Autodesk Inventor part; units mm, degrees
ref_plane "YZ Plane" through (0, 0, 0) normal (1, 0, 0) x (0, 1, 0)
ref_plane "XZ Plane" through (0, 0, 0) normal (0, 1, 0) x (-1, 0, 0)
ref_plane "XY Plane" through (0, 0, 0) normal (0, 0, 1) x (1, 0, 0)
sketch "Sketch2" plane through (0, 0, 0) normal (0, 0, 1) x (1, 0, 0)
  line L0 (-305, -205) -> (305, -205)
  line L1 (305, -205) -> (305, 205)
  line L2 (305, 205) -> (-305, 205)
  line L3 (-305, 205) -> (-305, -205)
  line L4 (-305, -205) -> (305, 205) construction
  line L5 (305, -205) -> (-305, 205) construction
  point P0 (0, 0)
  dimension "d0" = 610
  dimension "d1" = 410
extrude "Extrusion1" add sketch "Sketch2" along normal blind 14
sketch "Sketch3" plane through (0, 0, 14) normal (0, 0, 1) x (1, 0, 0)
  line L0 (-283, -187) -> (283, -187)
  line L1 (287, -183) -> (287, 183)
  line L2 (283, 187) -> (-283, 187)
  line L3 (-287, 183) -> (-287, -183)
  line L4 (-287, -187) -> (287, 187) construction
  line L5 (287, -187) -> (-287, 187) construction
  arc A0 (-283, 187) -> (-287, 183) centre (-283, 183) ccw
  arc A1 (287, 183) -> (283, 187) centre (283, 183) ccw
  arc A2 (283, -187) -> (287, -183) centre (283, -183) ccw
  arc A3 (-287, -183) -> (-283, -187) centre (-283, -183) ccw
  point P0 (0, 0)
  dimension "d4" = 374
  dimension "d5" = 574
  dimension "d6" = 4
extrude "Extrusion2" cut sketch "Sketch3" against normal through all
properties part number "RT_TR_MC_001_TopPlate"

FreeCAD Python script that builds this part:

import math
import FreeCAD as App
import Part
import Sketcher
from FreeCAD import Vector


def add_polygon(sketch, points):
    """Adds a closed chain of lines whose ends are joined by coincident constraints."""
    first, n = sketch.GeometryCount, len(points)
    for a, b in zip(points, points[1:] + points[:1]):
        sketch.addGeometry(Part.LineSegment(App.Vector(*a, 0), App.Vector(*b, 0)), False)
    for i in range(n):
        sketch.addConstraint(Sketcher.Constraint("Coincident", first + i, 2, first + (i + 1) % n, 1))

doc = App.newDocument("Part")
body = doc.addObject("PartDesign::Body", "Body")

sketch1 = doc.addObject("Sketcher::SketchObject", "Sketch")
body.addObject(sketch1)
sketch1.AttachmentSupport = (doc.XY_Plane, [""])
sketch1.MapMode = "FlatFace"
add_polygon(sketch1, [(-305, 205), (-305, -205), (305, -205), (305, 205)])
sketch1.addConstraint(Sketcher.Constraint("Vertical", 0))
sketch1.addConstraint(Sketcher.Constraint("Horizontal", 1))
sketch1.addConstraint(Sketcher.Constraint("Vertical", 2))
sketch1.addConstraint(Sketcher.Constraint("Horizontal", 3))
sketch1.addConstraint(Sketcher.Constraint("Symmetric", 0, 2, 2, 2, -1, 1))
sketch1.addConstraint(Sketcher.Constraint("DistanceX", 1, 1, 1, 2, 610.0))
sketch1.addConstraint(Sketcher.Constraint("DistanceY", 0, 2, 0, 1, 410.0))
pad1 = doc.addObject("PartDesign::Pad", "Pad")
body.addObject(pad1)
pad1.Profile = sketch1
pad1.Length = 14

sketch2 = doc.addObject("Sketcher::SketchObject", "Sketch001")
body.addObject(sketch2)
sketch2.AttachmentSupport = (doc.XY_Plane, [""])
sketch2.MapMode = "FlatFace"
sketch2.AttachmentOffset = App.Placement(Vector(0, 0, 14), App.Rotation())
sketch2.addGeometry(Part.ArcOfCircle(Part.Circle(Vector(-283, -183, 0), Vector(0, 0, 1), 4), math.radians(180), math.radians(270)), False)
sketch2.addGeometry(Part.LineSegment(Vector(-283, -187, 0), Vector(283, -187, 0)), False)
sketch2.addGeometry(Part.ArcOfCircle(Part.Circle(Vector(283, -183, 0), Vector(0, 0, 1), 4), math.radians(-90), math.radians(0)), False)
sketch2.addGeometry(Part.LineSegment(Vector(287, -183, 0), Vector(287, 183, 0)), False)
sketch2.addGeometry(Part.ArcOfCircle(Part.Circle(Vector(283, 183, 0), Vector(0, 0, 1), 4), math.radians(0), math.radians(90)), False)
sketch2.addGeometry(Part.LineSegment(Vector(283, 187, 0), Vector(-283, 187, 0)), False)
sketch2.addGeometry(Part.ArcOfCircle(Part.Circle(Vector(-283, 183, 0), Vector(0, 0, 1), 4), math.radians(90), math.radians(180)), False)
sketch2.addGeometry(Part.LineSegment(Vector(-287, 183, 0), Vector(-287, -183, 0)), False)
sketch2.addConstraint(Sketcher.Constraint("Tangent", 0, 2, 1, 1))
sketch2.addConstraint(Sketcher.Constraint("Tangent", 1, 2, 2, 1))
sketch2.addConstraint(Sketcher.Constraint("Tangent", 2, 2, 3, 1))
sketch2.addConstraint(Sketcher.Constraint("Tangent", 3, 2, 4, 1))
sketch2.addConstraint(Sketcher.Constraint("Tangent", 4, 2, 5, 1))
sketch2.addConstraint(Sketcher.Constraint("Tangent", 5, 2, 6, 1))
sketch2.addConstraint(Sketcher.Constraint("Tangent", 6, 2, 7, 1))
sketch2.addConstraint(Sketcher.Constraint("Tangent", 7, 2, 0, 1))
sketch2.addConstraint(Sketcher.Constraint("Horizontal", 1))
sketch2.addConstraint(Sketcher.Constraint("Vertical", 3))
sketch2.addConstraint(Sketcher.Constraint("Horizontal", 5))
sketch2.addConstraint(Sketcher.Constraint("Vertical", 7))
sketch2.addConstraint(Sketcher.Constraint("Equal", 0, 2))
sketch2.addConstraint(Sketcher.Constraint("Equal", 2, 4))
sketch2.addConstraint(Sketcher.Constraint("Equal", 4, 6))
sketch2.addConstraint(Sketcher.Constraint("Symmetric", 0, 3, 4, 3, -1, 1))
sketch2.addConstraint(Sketcher.Constraint("Radius", 0, 4.0))
sketch2.addConstraint(Sketcher.Constraint("DistanceY", 1, 2, 4, 2, 374.0))
sketch2.addConstraint(Sketcher.Constraint("DistanceX", 1, 1, 1, 2, 566.0))
pocket1 = doc.addObject("PartDesign::Pocket", "Pocket")
body.addObject(pocket1)
pocket1.Profile = sketch2
pocket1.Type = "ThroughAll"

doc.recompute()
